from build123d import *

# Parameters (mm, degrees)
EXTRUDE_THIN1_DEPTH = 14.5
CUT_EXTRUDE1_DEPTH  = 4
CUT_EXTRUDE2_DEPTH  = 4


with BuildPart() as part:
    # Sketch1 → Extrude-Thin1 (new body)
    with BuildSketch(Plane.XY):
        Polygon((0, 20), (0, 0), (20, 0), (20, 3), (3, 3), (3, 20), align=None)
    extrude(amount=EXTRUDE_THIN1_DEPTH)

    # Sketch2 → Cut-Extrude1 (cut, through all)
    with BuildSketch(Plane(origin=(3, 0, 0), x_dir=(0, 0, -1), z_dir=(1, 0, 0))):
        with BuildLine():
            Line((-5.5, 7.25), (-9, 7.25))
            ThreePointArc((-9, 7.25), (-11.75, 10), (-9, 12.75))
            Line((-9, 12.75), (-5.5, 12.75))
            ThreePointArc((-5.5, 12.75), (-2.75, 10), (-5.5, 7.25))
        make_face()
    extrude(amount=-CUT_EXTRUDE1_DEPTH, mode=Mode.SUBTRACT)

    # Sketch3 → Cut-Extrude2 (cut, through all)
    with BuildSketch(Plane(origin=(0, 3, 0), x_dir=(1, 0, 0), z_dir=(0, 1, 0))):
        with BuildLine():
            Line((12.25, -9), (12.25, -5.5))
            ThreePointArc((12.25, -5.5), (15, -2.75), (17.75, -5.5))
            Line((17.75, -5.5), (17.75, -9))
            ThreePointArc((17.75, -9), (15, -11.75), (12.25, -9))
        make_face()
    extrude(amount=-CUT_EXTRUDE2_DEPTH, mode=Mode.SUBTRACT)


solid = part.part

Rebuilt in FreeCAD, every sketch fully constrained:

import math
import FreeCAD as App
import Part
import Sketcher

V = App.Vector

doc = App.newDocument("Part")
body = doc.addObject("PartDesign::Body", "Body")

# Sketch on XY plane
sketch1 = body.newObject("Sketcher::SketchObject", "Sketch")
sketch1.AttachmentSupport = (doc.getObject("XY_Plane"), [""])
sketch1.MapMode = "FlatFace"
sketch1.addGeometry([
    Part.LineSegment(V(0, 20, 0), V(0, 0, 0)),  # 0
    Part.LineSegment(V(0, 0, 0), V(20, 0, 0)),  # 1
    Part.LineSegment(V(20, 0, 0), V(20, 3, 0)),  # 2
    Part.LineSegment(V(20, 3, 0), V(3, 3, 0)),  # 3
    Part.LineSegment(V(3, 3, 0), V(3, 20, 0)),  # 4
    Part.LineSegment(V(3, 20, 0), V(0, 20, 0)),  # 5
], False)
sketch1.addConstraint([
    Sketcher.Constraint("Coincident", 0, 2, 1, 1),
    Sketcher.Constraint("Coincident", 1, 2, 2, 1),
    Sketcher.Constraint("Coincident", 2, 2, 3, 1),
    Sketcher.Constraint("Coincident", 3, 2, 4, 1),
    Sketcher.Constraint("Coincident", 4, 2, 5, 1),
    Sketcher.Constraint("Coincident", 5, 2, 0, 1),
    Sketcher.Constraint("Vertical", 0),
    Sketcher.Constraint("Horizontal", 1),
    Sketcher.Constraint("Vertical", 2),
    Sketcher.Constraint("Horizontal", 3),
    Sketcher.Constraint("Vertical", 4),
    Sketcher.Constraint("Horizontal", 5),
    Sketcher.Constraint("Coincident", 0, 2, -1, 1),
    Sketcher.Constraint("Equal", 1, 0),
    Sketcher.Constraint("Equal", 5, 2),
    Sketcher.Constraint("DistanceX", 1, 1, 1, 2, 20.0),
    Sketcher.Constraint("DistanceX", 3, 2, 3, 1, 17.0),
])
pad1 = body.newObject("PartDesign::Pad", "Pad")
pad1.Profile = sketch1
pad1.Length = 14.5

# Sketch on YZ plane
sketch2 = body.newObject("Sketcher::SketchObject", "Sketch001")
sketch2.AttachmentSupport = (doc.getObject("YZ_Plane"), [""])
sketch2.MapMode = "FlatFace"
sketch2.AttachmentOffset = App.Placement(V(0, 0, 3), App.Rotation())
sketch2.addGeometry([
    Part.LineSegment(V(7.2, 9, 0), V(7.2, 5.5, 0)),
    Part.ArcOfCircle(Part.Circle(V(10, 5.5, 0), V(0, 0, 1), 2.8), math.radians(180), math.radians(360)),
    Part.LineSegment(V(12.8, 5.5, 0), V(12.8, 9, 0)),
    Part.ArcOfCircle(Part.Circle(V(10, 9, 0), V(0, 0, 1), 2.8), math.radians(0), math.radians(180)),
], False)
sketch2.addConstraint([
    Sketcher.Constraint("Tangent", 0, 2, 1, 1),
    Sketcher.Constraint("Tangent", 1, 2, 2, 1),
    Sketcher.Constraint("Tangent", 2, 2, 3, 1),
    Sketcher.Constraint("Tangent", 3, 2, 0, 1),
    Sketcher.Constraint("Vertical", 0),
    Sketcher.Constraint("Vertical", 2),
    Sketcher.Constraint("Radius", 1, 2.75),
    Sketcher.Constraint("DistanceY", 0, 2, 0, 1, 3.5),
    Sketcher.Constraint("DistanceX", -1, 1, 1, 3, 10.0),
    Sketcher.Constraint("DistanceY", -1, 1, 3, 3, 9.0),
])
pocket1 = body.newObject("PartDesign::Pocket", "Pocket")
pocket1.Profile = sketch2
pocket1.Type = "ThroughAll"

# Sketch on XZ plane
sketch3 = body.newObject("Sketcher::SketchObject", "Sketch002")
sketch3.AttachmentSupport = (doc.getObject("XZ_Plane"), [""])
sketch3.MapMode = "FlatFace"
sketch3.AttachmentOffset = App.Placement(V(0, 0, -3), App.Rotation())
sketch3.addGeometry([
    Part.LineSegment(V(12.2, 5.5, 0), V(12.2, 9, 0)),
    Part.ArcOfCircle(Part.Circle(V(15, 9, 0), V(0, 0, 1), 2.8), math.radians(0), math.radians(180)),
    Part.LineSegment(V(17.8, 9, 0), V(17.8, 5.5, 0)),
    Part.ArcOfCircle(Part.Circle(V(15, 5.5, 0), V(0, 0, 1), 2.8), math.radians(180), math.radians(360)),
], False)
sketch3.addConstraint([
    Sketcher.Constraint("Tangent", 0, 2, 1, 2),
    Sketcher.Constraint("Tangent", 1, 1, 2, 1),
    Sketcher.Constraint("Tangent", 2, 2, 3, 2),
    Sketcher.Constraint("Tangent", 3, 1, 0, 1),
    Sketcher.Constraint("Vertical", 0),
    Sketcher.Constraint("Vertical", 2),
    Sketcher.Constraint("Radius", 1, 2.75),
    Sketcher.Constraint("DistanceY", 0, 1, 0, 2, 3.5),
    Sketcher.Constraint("DistanceX", -1, 1, 1, 3, 15.0),
    Sketcher.Constraint("DistanceY", -1, 1, 1, 3, 9.0),
])
pocket2 = body.newObject("PartDesign::Pocket", "Pocket001")
pocket2.Profile = sketch3
pocket2.Type = "ThroughAll"
pocket2.Reversed = True

doc.recompute()
